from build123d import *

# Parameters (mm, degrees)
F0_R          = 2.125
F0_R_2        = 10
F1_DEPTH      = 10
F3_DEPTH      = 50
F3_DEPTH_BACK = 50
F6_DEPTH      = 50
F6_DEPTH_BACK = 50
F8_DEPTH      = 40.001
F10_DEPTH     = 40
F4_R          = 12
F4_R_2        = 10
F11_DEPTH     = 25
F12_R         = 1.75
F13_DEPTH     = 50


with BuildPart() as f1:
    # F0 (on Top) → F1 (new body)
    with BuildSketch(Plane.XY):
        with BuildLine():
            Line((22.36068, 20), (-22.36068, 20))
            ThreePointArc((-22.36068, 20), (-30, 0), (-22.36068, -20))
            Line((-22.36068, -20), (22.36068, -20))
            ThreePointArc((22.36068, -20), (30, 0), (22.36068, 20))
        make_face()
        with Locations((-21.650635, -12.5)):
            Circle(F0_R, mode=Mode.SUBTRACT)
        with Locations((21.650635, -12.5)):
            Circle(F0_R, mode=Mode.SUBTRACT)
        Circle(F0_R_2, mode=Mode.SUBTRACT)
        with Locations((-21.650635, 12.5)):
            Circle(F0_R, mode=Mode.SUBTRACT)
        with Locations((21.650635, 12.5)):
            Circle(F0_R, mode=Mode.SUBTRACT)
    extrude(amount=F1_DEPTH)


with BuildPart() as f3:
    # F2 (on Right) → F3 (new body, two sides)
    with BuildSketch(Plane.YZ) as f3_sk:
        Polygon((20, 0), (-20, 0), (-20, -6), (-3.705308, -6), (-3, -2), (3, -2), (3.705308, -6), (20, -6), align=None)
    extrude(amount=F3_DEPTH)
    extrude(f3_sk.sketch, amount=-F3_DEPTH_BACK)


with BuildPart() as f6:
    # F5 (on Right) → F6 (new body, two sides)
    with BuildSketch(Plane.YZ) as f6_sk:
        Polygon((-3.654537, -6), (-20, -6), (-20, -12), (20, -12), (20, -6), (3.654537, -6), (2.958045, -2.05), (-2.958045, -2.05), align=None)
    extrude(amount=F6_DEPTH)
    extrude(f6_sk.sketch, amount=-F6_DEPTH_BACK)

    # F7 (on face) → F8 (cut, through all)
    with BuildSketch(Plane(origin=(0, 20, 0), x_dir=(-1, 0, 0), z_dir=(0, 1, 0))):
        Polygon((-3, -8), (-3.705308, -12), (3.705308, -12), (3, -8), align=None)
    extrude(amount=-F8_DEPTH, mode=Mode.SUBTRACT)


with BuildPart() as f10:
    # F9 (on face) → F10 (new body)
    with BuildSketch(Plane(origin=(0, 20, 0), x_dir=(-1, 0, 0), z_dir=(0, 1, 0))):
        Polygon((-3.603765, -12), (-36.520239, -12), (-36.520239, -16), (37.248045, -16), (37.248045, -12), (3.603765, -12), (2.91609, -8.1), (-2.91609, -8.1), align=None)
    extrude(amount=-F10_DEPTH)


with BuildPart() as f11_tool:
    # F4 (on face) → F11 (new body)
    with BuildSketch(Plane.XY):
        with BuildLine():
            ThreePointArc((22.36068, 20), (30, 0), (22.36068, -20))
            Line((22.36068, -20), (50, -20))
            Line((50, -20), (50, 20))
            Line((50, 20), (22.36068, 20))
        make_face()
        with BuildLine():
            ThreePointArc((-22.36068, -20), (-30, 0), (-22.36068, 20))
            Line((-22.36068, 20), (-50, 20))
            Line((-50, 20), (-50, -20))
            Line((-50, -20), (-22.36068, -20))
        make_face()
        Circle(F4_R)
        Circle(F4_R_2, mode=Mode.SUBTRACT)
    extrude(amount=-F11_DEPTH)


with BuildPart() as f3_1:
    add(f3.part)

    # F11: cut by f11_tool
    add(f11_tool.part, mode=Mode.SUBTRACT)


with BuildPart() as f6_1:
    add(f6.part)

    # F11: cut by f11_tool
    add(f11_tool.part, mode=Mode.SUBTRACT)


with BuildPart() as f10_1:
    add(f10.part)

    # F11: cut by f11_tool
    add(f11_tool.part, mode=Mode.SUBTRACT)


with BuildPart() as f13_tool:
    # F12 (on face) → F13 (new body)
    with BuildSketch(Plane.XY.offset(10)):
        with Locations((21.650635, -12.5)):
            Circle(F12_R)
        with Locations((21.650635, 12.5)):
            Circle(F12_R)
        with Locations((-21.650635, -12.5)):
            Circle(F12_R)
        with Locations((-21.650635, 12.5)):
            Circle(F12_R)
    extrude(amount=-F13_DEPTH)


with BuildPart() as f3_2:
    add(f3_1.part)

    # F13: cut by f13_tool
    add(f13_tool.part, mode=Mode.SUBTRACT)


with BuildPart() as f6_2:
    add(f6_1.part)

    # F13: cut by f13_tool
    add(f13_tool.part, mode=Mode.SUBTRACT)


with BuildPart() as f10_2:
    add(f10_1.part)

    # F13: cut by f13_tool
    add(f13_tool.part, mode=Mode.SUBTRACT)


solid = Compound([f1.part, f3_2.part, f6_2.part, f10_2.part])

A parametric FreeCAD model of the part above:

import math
import FreeCAD as App
import Part
import Sketcher
from FreeCAD import Vector
Q = App.Units.Quantity


def add_polygon(sketch, points):
    """Adds a closed chain of lines whose ends are joined by coincident constraints."""
    first, n = sketch.GeometryCount, len(points)
    for a, b in zip(points, points[1:] + points[:1]):
        sketch.addGeometry(Part.LineSegment(App.Vector(*a, 0), App.Vector(*b, 0)), False)
    for i in range(n):
        sketch.addConstraint(Sketcher.Constraint("Coincident", first + i, 2, first + (i + 1) % n, 1))

doc = App.newDocument("Part")
params = doc.addObject("Spreadsheet::Sheet", "Params")
for row, (alias, value) in enumerate([
    ("sketch1_diameter", "20 mm"),
    ("sketch1_radius", "30.000001 mm"),
    ("sketch1_diameter2", "4.25 mm"),
    ("pad1_length", "10 mm"),
    ("sketch2_width", "40 mm"),
    ("sketch2_width2", "6 mm"),
    ("pad2_length", "50 mm"),
    ("pad2_length2", "50 mm"),
    ("sketch3_width", "40 mm"),
    ("sketch3_height", "6 mm"),
    ("pad3_length", "50 mm"),
    ("pad3_length2", "50 mm"),
    ("sketch4_width", "6 mm"),
    ("sketch5_height", "4 mm"),
    ("pad4_length", "40 mm"),
    ("sketch6_diameter", "24 mm"),
    ("sketch6_diameter2", "20 mm"),
    ("sketch6_radius", "30.000001 mm"),
    ("sketch6_height", "40 mm"),
    ("pad5_length", "25 mm"),
    ("sketch7_diameter", "3.5 mm"),
    ("pad6_length", "50 mm"),
], start=1):
    params.set(f"A{row}", alias)
    params.set(f"B{row}", "=" + value)
    params.setAlias(f"B{row}", alias)

body = doc.addObject("PartDesign::Body", "Body")

# Sketch on XY plane
sketch1 = doc.addObject("Sketcher::SketchObject", "Sketch")
body.addObject(sketch1)
sketch1.AttachmentSupport = (doc.XY_Plane, [""])
sketch1.MapMode = "FlatFace"
sketch1.addGeometry([
    Part.LineSegment(Vector(22.36068, 20, 0), Vector(-22.36068, 20, 0)),  # 0
    Part.ArcOfCircle(Part.Circle(Vector(0.000001, 0, 0), Vector(0, 0, 1), 30.000001), math.radians(138.189686), math.radians(221.810314)),  # 1
    Part.LineSegment(Vector(-22.36068, -20, 0), Vector(22.36068, -20, 0)),  # 2
    Part.ArcOfCircle(Part.Circle(Vector(-0.000001, 0, 0), Vector(0, 0, 1), 30.000001), math.radians(-41.810314), math.radians(41.810314)),  # 3
    Part.Circle(Vector(-21.650635, -12.5, 0), Vector(0, 0, 1), 2.125),  # 4
    Part.Circle(Vector(21.650635, -12.5, 0), Vector(0, 0, 1), 2.125),  # 5
    Part.Circle(Vector(-21.650635, 12.5, 0), Vector(0, 0, 1), 2.125),  # 6
    Part.Circle(Vector(0, 0, 0), Vector(0, 0, 1), 10),  # 7
    Part.Circle(Vector(21.650635, 12.5, 0), Vector(0, 0, 1), 2.125),  # 8
], False)
sketch1.addConstraint([
    Sketcher.Constraint("Coincident", 0, 2, 1, 1),
    Sketcher.Constraint("Coincident", 1, 2, 2, 1),
    Sketcher.Constraint("Coincident", 2, 2, 3, 1),
    Sketcher.Constraint("Coincident", 3, 2, 0, 1),
    Sketcher.Constraint("Horizontal", 0),
    Sketcher.Constraint("Horizontal", 2),
    Sketcher.Constraint("Coincident", 1, 3, -1, 1),
    Sketcher.Constraint("Coincident", 3, 3, -1, 1),
    Sketcher.Constraint("Coincident", 7, 3, -1, 1),
    Sketcher.Constraint("Equal", 1, 3),
    Sketcher.Constraint("Equal", 4, 5),
    Sketcher.Constraint("Equal", 5, 6),
    Sketcher.Constraint("Equal", 6, 8),
    Sketcher.Constraint("Symmetric", 5, 3, 6, 3, -1, 1),
    Sketcher.Constraint("Symmetric", 4, 3, 8, 3, -1, 1),
    Sketcher.Constraint("Symmetric", 4, 3, 5, 3, -2),
    Sketcher.Constraint("Vertical", 0, 2, 1, 2),
    Sketcher.Constraint("Diameter", 7, 20.0),
    Sketcher.Constraint("Radius", 1, 30.000001),
    Sketcher.Constraint("Diameter", 4, 4.25),
    Sketcher.Constraint("DistanceY", -1, 1, 0, 2, 20.0),
    Sketcher.Constraint("DistanceY", 4, 3, 6, 3, 25.0),
    Sketcher.Constraint("DistanceX", 4, 3, 5, 3, 43.30127),
])
sketch1.setExpression("Constraints[17]", "Params.sketch1_diameter")
sketch1.setExpression("Constraints[18]", "Params.sketch1_radius")
sketch1.setExpression("Constraints[19]", "Params.sketch1_diameter2")
pad1 = doc.addObject("PartDesign::Pad", "Pad")
body.addObject(pad1)
pad1.Profile = sketch1
pad1.setExpression("Length", "Params.pad1_length")
body2 = doc.addObject("PartDesign::Body", "Body001")

# Sketch on YZ plane
sketch2 = doc.addObject("Sketcher::SketchObject", "Sketch001")
body2.addObject(sketch2)
sketch2.AttachmentSupport = (doc.getObject("YZ_Plane001"), [""])
sketch2.MapMode = "FlatFace"
add_polygon(sketch2, [(20, 0), (-20, 0), (-20, -6), (-3.705308, -6), (-3, -2), (3, -2), (3.705308, -6), (20, -6)])  # lines 0-7
sketch2.addConstraint([
    Sketcher.Constraint("Horizontal", 0),
    Sketcher.Constraint("Vertical", 1),
    Sketcher.Constraint("Horizontal", 2),
    Sketcher.Constraint("Horizontal", 4),
    Sketcher.Constraint("Horizontal", 6),
    Sketcher.Constraint("Vertical", 7),
    Sketcher.Constraint("Symmetric", 0, 2, 7, 2, -1, 1),
    Sketcher.Constraint("Symmetric", 2, 2, 5, 2, -2),
    Sketcher.Constraint("Equal", 4, 1),
    Sketcher.Constraint("Equal", 3, 5),
    Sketcher.Constraint("DistanceX", 0, 2, 0, 1, 40.0),
    Sketcher.Constraint("DistanceX", 4, 1, 4, 2, 6.0),
    Sketcher.Constraint("Angle", 3, Q("79.999999 deg")),
    Sketcher.Constraint("DistanceY", 3, 2, -1, 1, 2.0),
])
sketch2.setExpression("Constraints[18]", "Params.sketch2_width")
sketch2.setExpression("Constraints[19]", "Params.sketch2_width2")
pad2 = doc.addObject("PartDesign::Pad", "Pad001")
body2.addObject(pad2)
pad2.Profile = sketch2
pad2.Type = "TwoLengths"
pad2.setExpression("Length", "Params.pad2_length")
pad2.setExpression("Length2", "Params.pad2_length2")
body3 = doc.addObject("PartDesign::Body", "Body002")

# Sketch on YZ plane
sketch3 = doc.addObject("Sketcher::SketchObject", "Sketch002")
body3.addObject(sketch3)
sketch3.AttachmentSupport = (doc.getObject("YZ_Plane002"), [""])
sketch3.MapMode = "FlatFace"
add_polygon(sketch3, [(-3.654537, -6), (-20, -6), (-20, -12), (20, -12), (20, -6), (3.654537, -6), (2.958045, -2.05), (-2.958045, -2.05)])  # lines 0-7
sketch3.addConstraint([
    Sketcher.Constraint("Horizontal", 0),
    Sketcher.Constraint("Vertical", 1),
    Sketcher.Constraint("Horizontal", 2),
    Sketcher.Constraint("Vertical", 3),
    Sketcher.Constraint("Horizontal", 4),
    Sketcher.Constraint("Horizontal", 6),
    Sketcher.Constraint("Symmetric", 0, 2, 3, 2, -2),
    Sketcher.Constraint("Equal", 0, 4),
    Sketcher.Constraint("Equal", 5, 7),
    Sketcher.Constraint("DistanceX", 2, 1, 2, 2, 40.0),
    Sketcher.Constraint("DistanceY", 1, 2, 1, 1, 6.0),
    Sketcher.Constraint("Angle", 5, Q("100.000006 deg")),
    Sketcher.Constraint("DistanceY", 0, 2, -1, 1, 6.0),
    Sketcher.Constraint("DistanceY", 5, 2, -1, 1, 2.05),
    Sketcher.Constraint("DistanceX", 6, 2, 6, 1, 5.91609),
])
sketch3.setExpression("Constraints[17]", "Params.sketch3_width")
sketch3.setExpression("Constraints[18]", "Params.sketch3_height")
pad3 = doc.addObject("PartDesign::Pad", "Pad002")
body3.addObject(pad3)
pad3.Profile = sketch3
pad3.Type = "TwoLengths"
pad3.setExpression("Length", "Params.pad3_length")
pad3.setExpression("Length2", "Params.pad3_length2")

# Sketch on XZ plane
sketch4 = doc.addObject("Sketcher::SketchObject", "Sketch003")
body3.addObject(sketch4)
sketch4.AttachmentSupport = (doc.getObject("XZ_Plane002"), [""])
sketch4.MapMode = "FlatFace"
sketch4.AttachmentOffset = App.Placement(Vector(0, 0, -20), App.Rotation())
add_polygon(sketch4, [(3, -8), (3.705308, -12), (-3.705308, -12), (-3, -8)])  # lines 0-3
sketch4.addConstraint([
    Sketcher.Constraint("Horizontal", 1),
    Sketcher.Constraint("Horizontal", 3),
    Sketcher.Constraint("Equal", 0, 2),
    Sketcher.Constraint("DistanceX", 3, 1, 3, 2, 6.0),
    Sketcher.Constraint("Angle", 0, Q("-79.999999 deg")),
    Sketcher.Constraint("DistanceY", 0, 2, -1, 1, 12.0),
    Sketcher.Constraint("DistanceX", 2, 2, -1, 1, 3.0),
    Sketcher.Constraint("DistanceY", 2, 2, -1, 1, 8.0),
])
sketch4.setExpression("Constraints[7]", "Params.sketch4_width")
pocket1 = doc.addObject("PartDesign::Pocket", "Pocket")
body3.addObject(pocket1)
pocket1.Profile = sketch4
pocket1.Type = "ThroughAll"
pocket1.Reversed = True
body4 = doc.addObject("PartDesign::Body", "Body003")

# Sketch on XZ plane
sketch5 = doc.addObject("Sketcher::SketchObject", "Sketch004")
body4.addObject(sketch5)
sketch5.AttachmentSupport = (doc.getObject("XZ_Plane003"), [""])
sketch5.MapMode = "FlatFace"
sketch5.AttachmentOffset = App.Placement(Vector(0, 0, -20), App.Rotation())
add_polygon(sketch5, [(3.603765, -12), (36.520239, -12), (36.520239, -16), (-37.248045, -16), (-37.248045, -12), (-3.603765, -12), (-2.91609, -8.1), (2.91609, -8.1)])  # lines 0-7
sketch5.addConstraint([
    Sketcher.Constraint("Horizontal", 0),
    Sketcher.Constraint("Vertical", 1),
    Sketcher.Constraint("Horizontal", 2),
    Sketcher.Constraint("Vertical", 3),
    Sketcher.Constraint("Horizontal", 4),
    Sketcher.Constraint("Horizontal", 6),
    Sketcher.Constraint("Symmetric", 4, 2, 7, 2, -2),
    Sketcher.Constraint("Equal", 5, 7),
    Sketcher.Constraint("DistanceY", 1, 2, 1, 1, 4.0),
    Sketcher.Constraint("Angle", 5, Q("80.000003 deg")),
    Sketcher.Constraint("DistanceY", 0, 2, -1, 1, 12.0),
    Sketcher.Constraint("DistanceY", 5, 2, -1, 1, 8.1),
    Sketcher.Constraint("DistanceX", 4, 1, 4, 2, 33.64428),
    Sketcher.Constraint("DistanceX", 6, 1, 6, 2, 5.83218),
    Sketcher.Constraint("DistanceX", 0, 1, 0, 2, 32.916474),
])
sketch5.setExpression("Constraints[16]", "Params.sketch5_height")
pad4 = doc.addObject("PartDesign::Pad", "Pad003")
body4.addObject(pad4)
pad4.Profile = sketch5
pad4.setExpression("Length", "Params.pad4_length")
body5 = doc.addObject("PartDesign::Body", "Body004")
body5.AllowCompound = True

# Sketch on XY plane
sketch6 = doc.addObject("Sketcher::SketchObject", "Sketch005")
body5.addObject(sketch6)
sketch6.AttachmentSupport = (doc.getObject("XY_Plane004"), [""])
sketch6.MapMode = "FlatFace"
sketch6.addGeometry([
    Part.ArcOfCircle(Part.Circle(Vector(-0.000001, 0, 0), Vector(0, 0, 1), 30.000001), math.radians(-41.810314), math.radians(41.810314)),  # 0
    Part.LineSegment(Vector(22.36068, -20, 0), Vector(50, -20, 0)),  # 1
    Part.LineSegment(Vector(50, -20, 0), Vector(50, 20, 0)),  # 2
    Part.LineSegment(Vector(50, 20, 0), Vector(22.36068, 20, 0)),  # 3
    Part.ArcOfCircle(Part.Circle(Vector(0.000001, 0, 0), Vector(0, 0, 1), 30.000001), math.radians(138.189686), math.radians(221.810314)),  # 4
    Part.LineSegment(Vector(-22.36068, 20, 0), Vector(-50, 20, 0)),  # 5
    Part.LineSegment(Vector(-50, 20, 0), Vector(-50, -20, 0)),  # 6
    Part.LineSegment(Vector(-50, -20, 0), Vector(-22.36068, -20, 0)),  # 7
    Part.Circle(Vector(0, 0, 0), Vector(0, 0, 1), 12),  # 8
    Part.Circle(Vector(0, 0, 0), Vector(0, 0, 1), 10),  # 9
], False)
sketch6.addConstraint([
    Sketcher.Constraint("Coincident", 0, 1, 1, 1),
    Sketcher.Constraint("Coincident", 1, 2, 2, 1),
    Sketcher.Constraint("Coincident", 2, 2, 3, 1),
    Sketcher.Constraint("Coincident", 3, 2, 0, 2),
    Sketcher.Constraint("Coincident", 4, 1, 5, 1),
    Sketcher.Constraint("Coincident", 5, 2, 6, 1),
    Sketcher.Constraint("Coincident", 6, 2, 7, 1),
    Sketcher.Constraint("Coincident", 7, 2, 4, 2),
    Sketcher.Constraint("Horizontal", 1),
    Sketcher.Constraint("Vertical", 2),
    Sketcher.Constraint("Horizontal", 3),
    Sketcher.Constraint("Horizontal", 5),
    Sketcher.Constraint("Vertical", 6),
    Sketcher.Constraint("Horizontal", 7),
    Sketcher.Constraint("Coincident", 0, 3, -1, 1),
    Sketcher.Constraint("Coincident", 4, 3, -1, 1),
    Sketcher.Constraint("Coincident", 8, 3, -1, 1),
    Sketcher.Constraint("Coincident", 9, 3, -1, 1),
    Sketcher.Constraint("Equal", 0, 4),
    Sketcher.Constraint("Symmetric", 1, 2, 5, 2, -1, 1),
    Sketcher.Constraint("Horizontal", 3, 2, 4, 1),
    Sketcher.Constraint("Horizontal", 1, 2, 6, 2),
    Sketcher.Constraint("Diameter", 8, 24.0),
    Sketcher.Constraint("Diameter", 9, 20.0),
    Sketcher.Constraint("Radius", 0, 30.000001),
    Sketcher.Constraint("DistanceY", 2, 1, 2, 2, 40.0),
    Sketcher.Constraint("DistanceX", -1, 1, 1, 2, 50.0),
])
sketch6.setExpression("Constraints[22]", "Params.sketch6_diameter")
sketch6.setExpression("Constraints[23]", "Params.sketch6_diameter2")
sketch6.setExpression("Constraints[24]", "Params.sketch6_radius")
sketch6.setExpression("Constraints[25]", "Params.sketch6_height")
pad5 = doc.addObject("PartDesign::Pad", "Pad004")
body5.addObject(pad5)
pad5.Profile = sketch6
pad5.setExpression("Length", "Params.pad5_length")
pad5.Reversed = True
body2.AllowCompound = True
doc.recompute()

body6 = doc.addObject("PartDesign::Body", "Body005")
body6.BaseFeature = body5
boolean = doc.addObject("PartDesign::Boolean", "Boolean")
body2.addObject(boolean)
boolean.Type = "Cut"
boolean.addObjects([body6])
doc.recompute()
body3.AllowCompound = True
doc.recompute()

body7 = doc.addObject("PartDesign::Body", "Body006")
body7.BaseFeature = body5
boolean2 = doc.addObject("PartDesign::Boolean", "Boolean001")
body3.addObject(boolean2)
boolean2.Type = "Cut"
boolean2.addObjects([body7])
doc.recompute()
body4.AllowCompound = True
doc.recompute()

boolean3 = doc.addObject("PartDesign::Boolean", "Boolean002")
body4.addObject(boolean3)
boolean3.Type = "Cut"
boolean3.addObjects([body5])
body8 = doc.addObject("PartDesign::Body", "Body007")
body8.AllowCompound = True

# Sketch on XY plane
sketch7 = doc.addObject("Sketcher::SketchObject", "Sketch006")
body8.addObject(sketch7)
sketch7.AttachmentSupport = (doc.getObject("XY_Plane007"), [""])
sketch7.MapMode = "FlatFace"
sketch7.AttachmentOffset = App.Placement(Vector(0, 0, 10), App.Rotation())
sketch7.addGeometry([
    Part.Circle(Vector(21.650635, -12.5, 0), Vector(0, 0, 1), 1.75),
    Part.Circle(Vector(21.650635, 12.5, 0), Vector(0, 0, 1), 1.75),
    Part.Circle(Vector(-21.650635, -12.5, 0), Vector(0, 0, 1), 1.75),
    Part.Circle(Vector(-21.650635, 12.5, 0), Vector(0, 0, 1), 1.75),
], False)
sketch7.addConstraint([
    Sketcher.Constraint("Equal", 0, 1),
    Sketcher.Constraint("Equal", 1, 2),
    Sketcher.Constraint("Equal", 2, 3),
    Sketcher.Constraint("Symmetric", 1, 3, 2, 3, -1, 1),
    Sketcher.Constraint("Symmetric", 0, 3, 3, 3, -1, 1),
    Sketcher.Constraint("Symmetric", 0, 3, 2, 3, -2),
    Sketcher.Constraint("Diameter", 0, 3.5),
    Sketcher.Constraint("DistanceY", 0, 3, 1, 3, 25.0),
    Sketcher.Constraint("DistanceX", 2, 3, 0, 3, 43.30127),
])
sketch7.setExpression("Constraints[6]", "Params.sketch7_diameter")
pad6 = doc.addObject("PartDesign::Pad", "Pad005")
body8.addObject(pad6)
pad6.Profile = sketch7
pad6.setExpression("Length", "Params.pad6_length")
pad6.Reversed = True
body2.AllowCompound = True
doc.recompute()

body9 = doc.addObject("PartDesign::Body", "Body008")
body9.BaseFeature = body8
boolean4 = doc.addObject("PartDesign::Boolean", "Boolean003")
body2.addObject(boolean4)
boolean4.Type = "Cut"
boolean4.addObjects([body9])
doc.recompute()
body3.AllowCompound = True
doc.recompute()

body10 = doc.addObject("PartDesign::Body", "Body009")
body10.BaseFeature = body8
boolean5 = doc.addObject("PartDesign::Boolean", "Boolean004")
body3.addObject(boolean5)
boolean5.Type = "Cut"
boolean5.addObjects([body10])
doc.recompute()
body4.AllowCompound = True
doc.recompute()

boolean6 = doc.addObject("PartDesign::Boolean", "Boolean005")
body4.addObject(boolean6)
boolean6.Type = "Cut"
boolean6.addObjects([body8])

doc.recompute()
